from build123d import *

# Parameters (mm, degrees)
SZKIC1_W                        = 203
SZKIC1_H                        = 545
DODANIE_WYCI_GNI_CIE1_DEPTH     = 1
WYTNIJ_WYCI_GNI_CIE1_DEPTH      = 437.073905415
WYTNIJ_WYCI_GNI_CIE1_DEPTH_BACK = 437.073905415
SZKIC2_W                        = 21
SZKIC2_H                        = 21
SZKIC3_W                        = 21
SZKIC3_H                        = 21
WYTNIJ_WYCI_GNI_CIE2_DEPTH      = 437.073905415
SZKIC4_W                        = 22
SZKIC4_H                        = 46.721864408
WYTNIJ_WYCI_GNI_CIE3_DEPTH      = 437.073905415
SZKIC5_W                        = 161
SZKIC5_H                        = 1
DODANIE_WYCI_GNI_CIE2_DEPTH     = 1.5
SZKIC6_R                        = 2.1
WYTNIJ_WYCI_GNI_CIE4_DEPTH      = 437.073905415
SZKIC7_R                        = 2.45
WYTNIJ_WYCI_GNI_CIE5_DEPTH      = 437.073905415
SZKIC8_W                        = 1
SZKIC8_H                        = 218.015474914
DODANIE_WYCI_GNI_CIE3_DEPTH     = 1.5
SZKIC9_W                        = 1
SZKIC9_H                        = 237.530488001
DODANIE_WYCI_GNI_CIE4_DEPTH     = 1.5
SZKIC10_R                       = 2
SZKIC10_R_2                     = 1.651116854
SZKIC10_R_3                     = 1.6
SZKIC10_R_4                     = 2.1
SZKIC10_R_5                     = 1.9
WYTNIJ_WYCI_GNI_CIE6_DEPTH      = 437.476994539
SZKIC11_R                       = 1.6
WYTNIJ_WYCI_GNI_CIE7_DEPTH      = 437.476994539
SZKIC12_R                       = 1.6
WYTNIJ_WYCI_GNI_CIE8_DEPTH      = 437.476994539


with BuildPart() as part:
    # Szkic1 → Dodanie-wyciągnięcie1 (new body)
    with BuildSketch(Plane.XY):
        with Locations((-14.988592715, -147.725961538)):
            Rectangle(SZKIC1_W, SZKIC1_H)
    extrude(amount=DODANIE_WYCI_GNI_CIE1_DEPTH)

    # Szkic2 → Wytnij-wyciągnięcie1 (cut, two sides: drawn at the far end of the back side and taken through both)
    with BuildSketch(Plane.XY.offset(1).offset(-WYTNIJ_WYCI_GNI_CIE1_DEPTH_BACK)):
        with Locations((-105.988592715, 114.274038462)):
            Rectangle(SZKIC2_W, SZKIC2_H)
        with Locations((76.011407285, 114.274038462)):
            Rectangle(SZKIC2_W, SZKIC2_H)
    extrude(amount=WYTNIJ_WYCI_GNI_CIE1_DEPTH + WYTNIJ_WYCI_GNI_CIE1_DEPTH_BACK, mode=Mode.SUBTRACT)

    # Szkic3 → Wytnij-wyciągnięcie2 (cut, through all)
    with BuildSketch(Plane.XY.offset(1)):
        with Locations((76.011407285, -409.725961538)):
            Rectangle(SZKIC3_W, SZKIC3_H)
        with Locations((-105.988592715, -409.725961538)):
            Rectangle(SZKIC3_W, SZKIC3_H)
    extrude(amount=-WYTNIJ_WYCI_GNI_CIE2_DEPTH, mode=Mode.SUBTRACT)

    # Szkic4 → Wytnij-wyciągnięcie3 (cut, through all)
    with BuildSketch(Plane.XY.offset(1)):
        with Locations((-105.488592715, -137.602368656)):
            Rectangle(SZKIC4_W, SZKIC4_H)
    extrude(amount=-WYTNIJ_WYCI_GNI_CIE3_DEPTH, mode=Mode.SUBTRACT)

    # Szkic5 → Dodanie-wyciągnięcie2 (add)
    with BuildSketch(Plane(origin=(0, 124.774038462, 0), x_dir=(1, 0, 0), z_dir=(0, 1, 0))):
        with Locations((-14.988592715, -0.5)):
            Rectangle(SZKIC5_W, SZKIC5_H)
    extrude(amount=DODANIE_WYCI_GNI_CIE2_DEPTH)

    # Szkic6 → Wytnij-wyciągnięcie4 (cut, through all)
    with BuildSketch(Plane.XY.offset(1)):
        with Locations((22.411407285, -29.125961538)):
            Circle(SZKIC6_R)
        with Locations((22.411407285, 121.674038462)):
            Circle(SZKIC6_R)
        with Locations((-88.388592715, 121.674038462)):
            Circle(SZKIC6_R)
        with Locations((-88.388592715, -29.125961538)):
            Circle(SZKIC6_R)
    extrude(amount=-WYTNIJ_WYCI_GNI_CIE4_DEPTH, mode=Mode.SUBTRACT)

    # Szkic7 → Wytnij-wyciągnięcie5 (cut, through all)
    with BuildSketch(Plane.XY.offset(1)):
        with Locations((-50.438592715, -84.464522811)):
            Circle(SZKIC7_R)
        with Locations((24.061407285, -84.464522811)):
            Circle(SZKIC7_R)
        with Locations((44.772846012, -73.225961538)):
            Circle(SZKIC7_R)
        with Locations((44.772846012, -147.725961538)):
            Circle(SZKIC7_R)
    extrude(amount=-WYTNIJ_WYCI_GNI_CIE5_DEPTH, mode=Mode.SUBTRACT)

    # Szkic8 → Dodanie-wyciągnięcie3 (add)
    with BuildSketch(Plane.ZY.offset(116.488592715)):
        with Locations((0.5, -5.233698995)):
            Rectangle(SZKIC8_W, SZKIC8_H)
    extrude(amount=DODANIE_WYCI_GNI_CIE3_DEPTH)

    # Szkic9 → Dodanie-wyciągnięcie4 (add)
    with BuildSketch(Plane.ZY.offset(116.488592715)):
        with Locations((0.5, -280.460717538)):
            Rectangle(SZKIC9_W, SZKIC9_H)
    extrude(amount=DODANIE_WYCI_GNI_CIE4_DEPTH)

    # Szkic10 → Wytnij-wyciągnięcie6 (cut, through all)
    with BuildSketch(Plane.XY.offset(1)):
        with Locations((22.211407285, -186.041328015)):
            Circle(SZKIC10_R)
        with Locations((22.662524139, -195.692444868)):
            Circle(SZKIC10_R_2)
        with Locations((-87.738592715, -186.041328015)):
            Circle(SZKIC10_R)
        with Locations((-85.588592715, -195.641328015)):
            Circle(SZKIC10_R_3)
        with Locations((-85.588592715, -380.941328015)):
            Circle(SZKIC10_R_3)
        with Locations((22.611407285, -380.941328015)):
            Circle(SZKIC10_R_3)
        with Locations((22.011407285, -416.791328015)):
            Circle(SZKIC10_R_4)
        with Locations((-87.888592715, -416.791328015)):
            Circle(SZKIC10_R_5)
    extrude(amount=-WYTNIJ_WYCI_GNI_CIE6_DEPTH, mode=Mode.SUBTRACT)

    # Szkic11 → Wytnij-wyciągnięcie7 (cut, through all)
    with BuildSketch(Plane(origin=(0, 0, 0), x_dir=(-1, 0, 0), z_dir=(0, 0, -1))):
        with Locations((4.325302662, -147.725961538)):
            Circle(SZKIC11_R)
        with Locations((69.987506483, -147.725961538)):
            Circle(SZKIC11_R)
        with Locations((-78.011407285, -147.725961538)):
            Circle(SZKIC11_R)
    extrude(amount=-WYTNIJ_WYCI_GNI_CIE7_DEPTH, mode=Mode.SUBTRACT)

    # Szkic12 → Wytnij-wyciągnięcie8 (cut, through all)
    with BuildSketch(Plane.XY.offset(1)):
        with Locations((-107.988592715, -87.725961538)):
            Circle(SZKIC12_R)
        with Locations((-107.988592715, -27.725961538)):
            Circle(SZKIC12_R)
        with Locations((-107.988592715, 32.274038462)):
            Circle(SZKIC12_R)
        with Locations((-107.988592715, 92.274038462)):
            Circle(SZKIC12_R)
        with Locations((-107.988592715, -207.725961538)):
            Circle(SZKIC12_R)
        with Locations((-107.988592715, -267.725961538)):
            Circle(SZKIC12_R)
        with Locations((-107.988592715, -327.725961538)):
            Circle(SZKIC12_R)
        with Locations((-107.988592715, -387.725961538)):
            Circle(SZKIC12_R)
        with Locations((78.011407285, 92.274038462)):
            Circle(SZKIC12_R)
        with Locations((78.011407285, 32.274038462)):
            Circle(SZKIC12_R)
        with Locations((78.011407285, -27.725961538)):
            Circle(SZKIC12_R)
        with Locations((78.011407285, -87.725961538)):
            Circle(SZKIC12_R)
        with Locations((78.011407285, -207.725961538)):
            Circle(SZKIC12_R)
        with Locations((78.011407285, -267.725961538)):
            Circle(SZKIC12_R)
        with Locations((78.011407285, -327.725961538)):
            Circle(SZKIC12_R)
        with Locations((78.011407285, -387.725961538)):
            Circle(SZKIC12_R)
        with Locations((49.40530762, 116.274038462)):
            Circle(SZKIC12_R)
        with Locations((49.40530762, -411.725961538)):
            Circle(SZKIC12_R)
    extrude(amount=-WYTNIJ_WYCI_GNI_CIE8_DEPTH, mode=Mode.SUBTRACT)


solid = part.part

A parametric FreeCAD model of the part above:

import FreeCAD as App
import Part
import Sketcher
Q = App.Units.Quantity

doc = App.newDocument("Part")
body = doc.addObject("PartDesign::Body", "Body")

# Sketch on XY plane
sketch1 = body.newObject("Sketcher::SketchObject", "Sketch")
sketch1.AttachmentSupport = (doc.getObject("XY_Plane"), [""])
sketch1.MapMode = "FlatFace"
sketch1.addGeometry([
    Part.LineSegment(App.Vector(-116, 125, 0), App.Vector(-116, -420, 0)),
    Part.LineSegment(App.Vector(-116, -420, 0), App.Vector(87, -420, 0)),
    Part.LineSegment(App.Vector(87, -420, 0), App.Vector(87, 125, 0)),
    Part.LineSegment(App.Vector(87, 125, 0), App.Vector(-116, 125, 0)),
], False)
sketch1.addConstraint([
    Sketcher.Constraint("Coincident", 0, 2, 1, 1),
    Sketcher.Constraint("Coincident", 1, 2, 2, 1),
    Sketcher.Constraint("Coincident", 2, 2, 3, 1),
    Sketcher.Constraint("Coincident", 3, 2, 0, 1),
    Sketcher.Constraint("Vertical", 0),
    Sketcher.Constraint("Horizontal", 1),
    Sketcher.Constraint("Vertical", 2),
    Sketcher.Constraint("Horizontal", 3),
    Sketcher.Constraint("DistanceX", 1, 1, 1, 2, Q("203 mm")),
    Sketcher.Constraint("DistanceY", 0, 2, 0, 1, Q("545 mm")),
    Sketcher.Constraint("DistanceY", 0, 2, -1, 1, Q("420.225962 mm")),
    Sketcher.Constraint("DistanceX", 0, 2, -1, 1, Q("116.488593 mm")),
])
pad1 = body.newObject("PartDesign::Pad", "Pad")
pad1.Profile = sketch1
pad1.Length = 1

# Sketch on XY plane
sketch2 = body.newObject("Sketcher::SketchObject", "Sketch001")
sketch2.AttachmentSupport = (doc.getObject("XY_Plane"), [""])
sketch2.MapMode = "FlatFace"
sketch2.AttachmentOffset = App.Placement(App.Vector(0, 0, 1), App.Rotation())
sketch2.addGeometry([
    Part.LineSegment(App.Vector(-116, 125, 0), App.Vector(-116, 104, 0)),  # 0
    Part.LineSegment(App.Vector(-116, 104, 0), App.Vector(-95, 104, 0)),  # 1
    Part.LineSegment(App.Vector(-95, 104, 0), App.Vector(-95, 125, 0)),  # 2
    Part.LineSegment(App.Vector(-95, 125, 0), App.Vector(-116, 125, 0)),  # 3
    Part.LineSegment(App.Vector(66, 125, 0), App.Vector(66, 104, 0)),  # 4
    Part.LineSegment(App.Vector(66, 104, 0), App.Vector(87, 104, 0)),  # 5
    Part.LineSegment(App.Vector(87, 104, 0), App.Vector(87, 125, 0)),  # 6
    Part.LineSegment(App.Vector(87, 125, 0), App.Vector(66, 125, 0)),  # 7
], False)
sketch2.addConstraint([
    Sketcher.Constraint("Coincident", 0, 2, 1, 1),
    Sketcher.Constraint("Coincident", 1, 2, 2, 1),
    Sketcher.Constraint("Coincident", 2, 2, 3, 1),
    Sketcher.Constraint("Coincident", 3, 2, 0, 1),
    Sketcher.Constraint("Coincident", 4, 2, 5, 1),
    Sketcher.Constraint("Coincident", 5, 2, 6, 1),
    Sketcher.Constraint("Coincident", 6, 2, 7, 1),
    Sketcher.Constraint("Coincident", 7, 2, 4, 1),
    Sketcher.Constraint("Vertical", 0),
    Sketcher.Constraint("Horizontal", 1),
    Sketcher.Constraint("Vertical", 2),
    Sketcher.Constraint("Horizontal", 3),
    Sketcher.Constraint("Vertical", 4),
    Sketcher.Constraint("Horizontal", 5),
    Sketcher.Constraint("Vertical", 6),
    Sketcher.Constraint("Horizontal", 7),
    Sketcher.Constraint("Horizontal", 1, 2, 4, 2),
    Sketcher.Constraint("Horizontal", 3, 2, 6, 2),
    Sketcher.Constraint("Equal", 3, 5),
    Sketcher.Constraint("Equal", 7, 0),
    Sketcher.Constraint("DistanceX", 1, 1, 1, 2, Q("21 mm")),
    Sketcher.Constraint("DistanceX", 1, 2, 4, 2, Q("161 mm")),
    Sketcher.Constraint("DistanceY", -1, 1, 0, 2, Q("103.774038 mm")),
    Sketcher.Constraint("DistanceX", 0, 2, -1, 1, Q("116.488593 mm")),
])
pocket1 = body.newObject("PartDesign::Pocket", "Pocket")
pocket1.Profile = sketch2
pocket1.Type = "ThroughAll"
pocket1.Midplane = True

# Sketch on XY plane
sketch3 = body.newObject("Sketcher::SketchObject", "Sketch002")
sketch3.AttachmentSupport = (doc.getObject("XY_Plane"), [""])
sketch3.MapMode = "FlatFace"
sketch3.AttachmentOffset = App.Placement(App.Vector(0, 0, 1), App.Rotation())
sketch3.addGeometry([
    Part.LineSegment(App.Vector(66, -399, 0), App.Vector(66, -420, 0)),  # 0
    Part.LineSegment(App.Vector(66, -420, 0), App.Vector(87, -420, 0)),  # 1
    Part.LineSegment(App.Vector(87, -420, 0), App.Vector(87, -399, 0)),  # 2
    Part.LineSegment(App.Vector(87, -399, 0), App.Vector(66, -399, 0)),  # 3
    Part.LineSegment(App.Vector(-116, -399, 0), App.Vector(-116, -420, 0)),  # 4
    Part.LineSegment(App.Vector(-116, -420, 0), App.Vector(-95, -420, 0)),  # 5
    Part.LineSegment(App.Vector(-95, -420, 0), App.Vector(-95, -399, 0)),  # 6
    Part.LineSegment(App.Vector(-95, -399, 0), App.Vector(-116, -399, 0)),  # 7
], False)
sketch3.addConstraint([
    Sketcher.Constraint("Coincident", 0, 2, 1, 1),
    Sketcher.Constraint("Coincident", 1, 2, 2, 1),
    Sketcher.Constraint("Coincident", 2, 2, 3, 1),
    Sketcher.Constraint("Coincident", 3, 2, 0, 1),
    Sketcher.Constraint("Coincident", 4, 2, 5, 1),
    Sketcher.Constraint("Coincident", 5, 2, 6, 1),
    Sketcher.Constraint("Coincident", 6, 2, 7, 1),
    Sketcher.Constraint("Coincident", 7, 2, 4, 1),
    Sketcher.Constraint("Vertical", 0),
    Sketcher.Constraint("Horizontal", 1),
    Sketcher.Constraint("Vertical", 2),
    Sketcher.Constraint("Horizontal", 3),
    Sketcher.Constraint("Vertical", 4),
    Sketcher.Constraint("Horizontal", 5),
    Sketcher.Constraint("Vertical", 6),
    Sketcher.Constraint("Horizontal", 7),
    Sketcher.Constraint("Horizontal", 1, 2, 4, 2),
    Sketcher.Constraint("Horizontal", 3, 2, 6, 2),
    Sketcher.Constraint("Equal", 3, 5),
    Sketcher.Constraint("Equal", 7, 0),
    Sketcher.Constraint("DistanceX", 1, 1, 1, 2, Q("21 mm")),
    Sketcher.Constraint("DistanceX", 4, 2, 0, 2, Q("182 mm")),
    Sketcher.Constraint("DistanceY", 0, 2, -1, 1, Q("420.225962 mm")),
    Sketcher.Constraint("DistanceX", -1, 1, 0, 2, Q("65.511407 mm")),
])
pocket2 = body.newObject("PartDesign::Pocket", "Pocket001")
pocket2.Profile = sketch3
pocket2.Type = "ThroughAll"

# Sketch on XY plane
sketch4 = body.newObject("Sketcher::SketchObject", "Sketch003")
sketch4.AttachmentSupport = (doc.getObject("XY_Plane"), [""])
sketch4.MapMode = "FlatFace"
sketch4.AttachmentOffset = App.Placement(App.Vector(0, 0, 1), App.Rotation())
sketch4.addGeometry([
    Part.LineSegment(App.Vector(-116, -114, 0), App.Vector(-116, -161, 0)),
    Part.LineSegment(App.Vector(-116, -161, 0), App.Vector(-94, -161, 0)),
    Part.LineSegment(App.Vector(-94, -161, 0), App.Vector(-94, -114, 0)),
    Part.LineSegment(App.Vector(-94, -114, 0), App.Vector(-116, -114, 0)),
], False)
sketch4.addConstraint([
    Sketcher.Constraint("Coincident", 0, 2, 1, 1),
    Sketcher.Constraint("Coincident", 1, 2, 2, 1),
    Sketcher.Constraint("Coincident", 2, 2, 3, 1),
    Sketcher.Constraint("Coincident", 3, 2, 0, 1),
    Sketcher.Constraint("Vertical", 0),
    Sketcher.Constraint("Horizontal", 1),
    Sketcher.Constraint("Vertical", 2),
    Sketcher.Constraint("Horizontal", 3),
    Sketcher.Constraint("DistanceX", 1, 1, 1, 2, Q("22 mm")),
    Sketcher.Constraint("DistanceY", 0, 2, -1, 1, Q("160.963301 mm")),
    Sketcher.Constraint("DistanceY", 0, 2, 0, 1, Q("46.721864 mm")),
    Sketcher.Constraint("DistanceX", 0, 2, -1, 1, Q("116.488593 mm")),
])
pocket3 = body.newObject("PartDesign::Pocket", "Pocket002")
pocket3.Profile = sketch4
pocket3.Type = "ThroughAll"

# Sketch on XZ plane
sketch5 = body.newObject("Sketcher::SketchObject", "Sketch004")
sketch5.AttachmentSupport = (doc.getObject("XZ_Plane"), [""])
sketch5.MapMode = "FlatFace"
sketch5.AttachmentOffset = App.Placement(App.Vector(0, 0, -124.774038), App.Rotation())
sketch5.addGeometry([
    Part.LineSegment(App.Vector(-95.5, 0, 0), App.Vector(-95.5, 1, 0)),
    Part.LineSegment(App.Vector(-95.5, 1, 0), App.Vector(65.5, 1, 0)),
    Part.LineSegment(App.Vector(65.5, 1, 0), App.Vector(65.5, 0, 0)),
    Part.LineSegment(App.Vector(65.5, 0, 0), App.Vector(-95.5, 0, 0)),
], False)
sketch5.addConstraint([
    Sketcher.Constraint("Coincident", 0, 2, 1, 1),
    Sketcher.Constraint("Coincident", 1, 2, 2, 1),
    Sketcher.Constraint("Coincident", 2, 2, 3, 1),
    Sketcher.Constraint("Coincident", 3, 2, 0, 1),
    Sketcher.Constraint("Vertical", 0),
    Sketcher.Constraint("Horizontal", 1),
    Sketcher.Constraint("Vertical", 2),
    Sketcher.Constraint("Horizontal", 3),
    Sketcher.Constraint("PointOnObject", 2, 2, -1),
    Sketcher.Constraint("DistanceX", 1, 1, 1, 2, Q("161 mm")),
    Sketcher.Constraint("DistanceY", 0, 1, 0, 2, Q("1 mm")),
    Sketcher.Constraint("DistanceX", 0, 2, -1, 1, Q("95.488593 mm")),
])
pad2 = body.newObject("PartDesign::Pad", "Pad001")
pad2.Profile = sketch5
pad2.Length = 1.5
pad2.Reversed = True

# Sketch on XY plane
sketch6 = body.newObject("Sketcher::SketchObject", "Sketch005")
sketch6.AttachmentSupport = (doc.getObject("XY_Plane"), [""])
sketch6.MapMode = "FlatFace"
sketch6.AttachmentOffset = App.Placement(App.Vector(0, 0, 1), App.Rotation())
sketch6.addGeometry([
    Part.Circle(App.Vector(22.4, -29.1, 0), App.Vector(0, 0, 1), 2.1),
    Part.Circle(App.Vector(22.4, 121.7, 0), App.Vector(0, 0, 1), 2.1),
    Part.Circle(App.Vector(-88.4, 121.7, 0), App.Vector(0, 0, 1), 2.1),
    Part.Circle(App.Vector(-88.4, -29.1, 0), App.Vector(0, 0, 1), 2.1),
], False)
sketch6.addConstraint([
    Sketcher.Constraint("Equal", 0, 1),
    Sketcher.Constraint("Equal", 1, 2),
    Sketcher.Constraint("Equal", 2, 3),
    Sketcher.Constraint("Horizontal", 1, 3, 2, 3),
    Sketcher.Constraint("Horizontal", 0, 3, 3, 3),
    Sketcher.Constraint("Vertical", 0, 3, 1, 3),
    Sketcher.Constraint("Vertical", 2, 3, 3, 3),
    Sketcher.Constraint("Diameter", 0, Q("4.2 mm")),
    Sketcher.Constraint("DistanceY", 0, 3, 1, 3, Q("150.8 mm")),
    Sketcher.Constraint("DistanceX", 2, 3, 1, 3, Q("110.8 mm")),
    Sketcher.Constraint("DistanceY", 0, 3, -1, 1, Q("29.125962 mm")),
    Sketcher.Constraint("DistanceX", -1, 1, 0, 3, Q("22.411407 mm")),
])
pocket4 = body.newObject("PartDesign::Pocket", "Pocket003")
pocket4.Profile = sketch6
pocket4.Type = "ThroughAll"

# Sketch on XY plane
sketch7 = body.newObject("Sketcher::SketchObject", "Sketch006")
sketch7.AttachmentSupport = (doc.getObject("XY_Plane"), [""])
sketch7.MapMode = "FlatFace"
sketch7.AttachmentOffset = App.Placement(App.Vector(0, 0, 1), App.Rotation())
sketch7.addGeometry([
    Part.Circle(App.Vector(-50.4, -84.5, 0), App.Vector(0, 0, 1), 2.5),
    Part.Circle(App.Vector(24.1, -84.5, 0), App.Vector(0, 0, 1), 2.5),
    Part.Circle(App.Vector(44.8, -73.2, 0), App.Vector(0, 0, 1), 2.5),
    Part.Circle(App.Vector(44.8, -147.7, 0), App.Vector(0, 0, 1), 2.5),
], False)
sketch7.addConstraint([
    Sketcher.Constraint("Equal", 0, 1),
    Sketcher.Constraint("Equal", 1, 2),
    Sketcher.Constraint("Equal", 2, 3),
    Sketcher.Constraint("Horizontal", 0, 3, 1, 3),
    Sketcher.Constraint("Vertical", 2, 3, 3, 3),
    Sketcher.Constraint("Diameter", 0, Q("4.9 mm")),
    Sketcher.Constraint("DistanceX", 0, 3, 1, 3, Q("74.5 mm")),
    Sketcher.Constraint("DistanceY", 3, 3, 2, 3, Q("74.5 mm")),
    Sketcher.Constraint("DistanceY", 2, 3, -1, 1, Q("73.225962 mm")),
    Sketcher.Constraint("DistanceX", 1, 3, 2, 3, Q("20.711439 mm")),
    Sketcher.Constraint("DistanceY", 1, 3, 2, 3, Q("11.238561 mm")),
    Sketcher.Constraint("DistanceX", 0, 3, -1, 1, Q("50.438593 mm")),
])
pocket5 = body.newObject("PartDesign::Pocket", "Pocket004")
pocket5.Profile = sketch7
pocket5.Type = "ThroughAll"

# Sketch on YZ plane
sketch8 = body.newObject("Sketcher::SketchObject", "Sketch007")
sketch8.AttachmentSupport = (doc.getObject("YZ_Plane"), [""])
sketch8.MapMode = "FlatFace"
sketch8.AttachmentOffset = App.Placement(App.Vector(0, 0, -116.488593), App.Rotation())
sketch8.addGeometry([
    Part.LineSegment(App.Vector(103.8, 0, 0), App.Vector(-114.2, 0, 0)),
    Part.LineSegment(App.Vector(-114.2, 0, 0), App.Vector(-114.2, 1, 0)),
    Part.LineSegment(App.Vector(-114.2, 1, 0), App.Vector(103.8, 1, 0)),
    Part.LineSegment(App.Vector(103.8, 1, 0), App.Vector(103.8, 0, 0)),
], False)
sketch8.addConstraint([
    Sketcher.Constraint("Coincident", 0, 2, 1, 1),
    Sketcher.Constraint("Coincident", 1, 2, 2, 1),
    Sketcher.Constraint("Coincident", 2, 2, 3, 1),
    Sketcher.Constraint("Coincident", 3, 2, 0, 1),
    Sketcher.Constraint("Horizontal", 0),
    Sketcher.Constraint("Vertical", 1),
    Sketcher.Constraint("Horizontal", 2),
    Sketcher.Constraint("Vertical", 3),
    Sketcher.Constraint("PointOnObject", 0, 2, -1),
    Sketcher.Constraint("DistanceY", 1, 1, 1, 2, Q("1 mm")),
    Sketcher.Constraint("DistanceX", 0, 2, 0, 1, Q("218.015475 mm")),
    Sketcher.Constraint("DistanceX", -1, 1, 2, 2, Q("103.774038 mm")),
])
pad3 = body.newObject("PartDesign::Pad", "Pad002")
pad3.Profile = sketch8
pad3.Length = 1.5
pad3.Reversed = True

# Sketch on YZ plane
sketch9 = body.newObject("Sketcher::SketchObject", "Sketch008")
sketch9.AttachmentSupport = (doc.getObject("YZ_Plane"), [""])
sketch9.MapMode = "FlatFace"
sketch9.AttachmentOffset = App.Placement(App.Vector(0, 0, -116.488593), App.Rotation())
sketch9.addGeometry([
    Part.LineSegment(App.Vector(-161.7, 0, 0), App.Vector(-399.2, 0, 0)),
    Part.LineSegment(App.Vector(-399.2, 0, 0), App.Vector(-399.2, 1, 0)),
    Part.LineSegment(App.Vector(-399.2, 1, 0), App.Vector(-161.7, 1, 0)),
    Part.LineSegment(App.Vector(-161.7, 1, 0), App.Vector(-161.7, 0, 0)),
], False)
sketch9.addConstraint([
    Sketcher.Constraint("Coincident", 0, 2, 1, 1),
    Sketcher.Constraint("Coincident", 1, 2, 2, 1),
    Sketcher.Constraint("Coincident", 2, 2, 3, 1),
    Sketcher.Constraint("Coincident", 3, 2, 0, 1),
    Sketcher.Constraint("Horizontal", 0),
    Sketcher.Constraint("Vertical", 1),
    Sketcher.Constraint("Horizontal", 2),
    Sketcher.Constraint("Vertical", 3),
    Sketcher.Constraint("PointOnObject", 0, 2, -1),
    Sketcher.Constraint("DistanceY", 1, 1, 1, 2, Q("1 mm")),
    Sketcher.Constraint("DistanceX", 0, 2, 0, 1, Q("237.530488 mm")),
    Sketcher.Constraint("DistanceX", 0, 2, -1, 1, Q("399.225962 mm")),
])
pad4 = body.newObject("PartDesign::Pad", "Pad003")
pad4.Profile = sketch9
pad4.Length = 1.5
pad4.Reversed = True

# Sketch on XY plane
sketch10 = body.newObject("Sketcher::SketchObject", "Sketch009")
sketch10.AttachmentSupport = (doc.getObject("XY_Plane"), [""])
sketch10.MapMode = "FlatFace"
sketch10.AttachmentOffset = App.Placement(App.Vector(0, 0, 1), App.Rotation())
sketch10.addGeometry([
    Part.Circle(App.Vector(22.2, -186, 0), App.Vector(0, 0, 1), 2),  # 0
    Part.Circle(App.Vector(22.7, -195.7, 0), App.Vector(0, 0, 1), 1.7),  # 1
    Part.Circle(App.Vector(-87.7, -186, 0), App.Vector(0, 0, 1), 2),  # 2
    Part.Circle(App.Vector(-85.6, -195.6, 0), App.Vector(0, 0, 1), 1.6),  # 3
    Part.Circle(App.Vector(-85.6, -380.9, 0), App.Vector(0, 0, 1), 1.6),  # 4
    Part.Circle(App.Vector(22.6, -380.9, 0), App.Vector(0, 0, 1), 1.6),  # 5
    Part.Circle(App.Vector(22, -416.8, 0), App.Vector(0, 0, 1), 2.1),  # 6
    Part.Circle(App.Vector(-87.9, -416.8, 0), App.Vector(0, 0, 1), 1.9),  # 7
], False)
sketch10.addConstraint([
    Sketcher.Constraint("Equal", 0, 2),
    Sketcher.Constraint("Equal", 3, 4),
    Sketcher.Constraint("Equal", 4, 5),
    Sketcher.Constraint("Horizontal", 0, 3, 2, 3),
    Sketcher.Constraint("Horizontal", 4, 3, 5, 3),
    Sketcher.Constraint("Horizontal", 6, 3, 7, 3),
    Sketcher.Constraint("Vertical", 3, 3, 4, 3),
    Sketcher.Constraint("Diameter", 0, Q("4 mm")),
    Sketcher.Constraint("Diameter", 3, Q("3.2 mm")),
    Sketcher.Constraint("Diameter", 6, Q("4.2 mm")),
    Sketcher.Constraint("Diameter", 7, Q("3.8 mm")),
    Sketcher.Constraint("DistanceY", 3, 3, 2, 3, Q("9.6 mm")),
    Sketcher.Constraint("DistanceX", 3, 3, 0, 3, Q("107.8 mm")),
    Sketcher.Constraint("DistanceY", 4, 3, 3, 3, Q("185.3 mm")),
    Sketcher.Constraint("DistanceX", 4, 3, 5, 3, Q("108.2 mm")),
    Sketcher.Constraint("DistanceX", 6, 3, 5, 3, Q("0.6 mm")),
    Sketcher.Constraint("DistanceX", 7, 3, 4, 3, Q("2.3 mm")),
    Sketcher.Constraint("DistanceX", 2, 3, 0, 3, Q("109.95 mm")),
    Sketcher.Constraint("DistanceY", 6, 3, 5, 3, Q("35.85 mm")),
    Sketcher.Constraint("Diameter", 1, Q("3.302234 mm")),
    Sketcher.Constraint("DistanceY", 0, 3, -1, 1, Q("186.041328 mm")),
    Sketcher.Constraint("DistanceX", -1, 1, 0, 3, Q("22.211407 mm")),
    Sketcher.Constraint("DistanceX", -1, 1, 1, 3, Q("22.662524 mm")),
    Sketcher.Constraint("DistanceY", 1, 3, -1, 1, Q("195.692445 mm")),
])
pocket6 = body.newObject("PartDesign::Pocket", "Pocket005")
pocket6.Profile = sketch10
pocket6.Type = "ThroughAll"

# Sketch on XY plane
sketch11 = body.newObject("Sketcher::SketchObject", "Sketch010")
sketch11.AttachmentSupport = (doc.getObject("XY_Plane"), [""])
sketch11.MapMode = "FlatFace"
sketch11.addGeometry([
    Part.Circle(App.Vector(-4.3, -147.7, 0), App.Vector(0, 0, 1), 1.6),
    Part.Circle(App.Vector(-70, -147.7, 0), App.Vector(0, 0, 1), 1.6),
    Part.Circle(App.Vector(78, -147.7, 0), App.Vector(0, 0, 1), 1.6),
], False)
sketch11.addConstraint([
    Sketcher.Constraint("Equal", 0, 1),
    Sketcher.Constraint("Equal", 1, 2),
    Sketcher.Constraint("Horizontal", 0, 3, 1, 3),
    Sketcher.Constraint("Horizontal", 1, 3, 2, 3),
    Sketcher.Constraint("Diameter", 0, Q("3.2 mm")),
    Sketcher.Constraint("DistanceY", 0, 3, -1, 1, Q("147.725962 mm")),
    Sketcher.Constraint("DistanceX", 0, 3, 2, 3, Q("82.33671 mm")),
    Sketcher.Constraint("DistanceX", 0, 3, -1, 1, Q("4.325303 mm")),
    Sketcher.Constraint("DistanceX", 1, 3, -1, 1, Q("69.987506 mm")),
])
pocket7 = body.newObject("PartDesign::Pocket", "Pocket006")
pocket7.Profile = sketch11
pocket7.Type = "ThroughAll"
pocket7.Reversed = True

# Sketch on XY plane
sketch12 = body.newObject("Sketcher::SketchObject", "Sketch011")
sketch12.AttachmentSupport = (doc.getObject("XY_Plane"), [""])
sketch12.MapMode = "FlatFace"
sketch12.AttachmentOffset = App.Placement(App.Vector(0, 0, 1), App.Rotation())
sketch12.addGeometry([
    Part.Circle(App.Vector(-108, -87.7, 0), App.Vector(0, 0, 1), 1.6),  # 0
    Part.Circle(App.Vector(-108, -27.7, 0), App.Vector(0, 0, 1), 1.6),  # 1
    Part.Circle(App.Vector(-108, 32.3, 0), App.Vector(0, 0, 1), 1.6),  # 2
    Part.Circle(App.Vector(-108, 92.3, 0), App.Vector(0, 0, 1), 1.6),  # 3
    Part.Circle(App.Vector(-108, -207.7, 0), App.Vector(0, 0, 1), 1.6),  # 4
    Part.Circle(App.Vector(-108, -267.7, 0), App.Vector(0, 0, 1), 1.6),  # 5
    Part.Circle(App.Vector(-108, -327.7, 0), App.Vector(0, 0, 1), 1.6),  # 6
    Part.Circle(App.Vector(-108, -387.7, 0), App.Vector(0, 0, 1), 1.6),  # 7
    Part.Circle(App.Vector(78, 92.3, 0), App.Vector(0, 0, 1), 1.6),  # 8
    Part.Circle(App.Vector(78, 32.3, 0), App.Vector(0, 0, 1), 1.6),  # 9
    Part.Circle(App.Vector(78, -27.7, 0), App.Vector(0, 0, 1), 1.6),  # 10
    Part.Circle(App.Vector(78, -87.7, 0), App.Vector(0, 0, 1), 1.6),  # 11
    Part.Circle(App.Vector(78, -207.7, 0), App.Vector(0, 0, 1), 1.6),  # 12
    Part.Circle(App.Vector(78, -267.7, 0), App.Vector(0, 0, 1), 1.6),  # 13
    Part.Circle(App.Vector(78, -327.7, 0), App.Vector(0, 0, 1), 1.6),  # 14
    Part.Circle(App.Vector(78, -387.7, 0), App.Vector(0, 0, 1), 1.6),  # 15
    Part.Circle(App.Vector(49.4, 116.3, 0), App.Vector(0, 0, 1), 1.6),  # 16
    Part.Circle(App.Vector(49.4, -411.7, 0), App.Vector(0, 0, 1), 1.6),  # 17
], False)
sketch12.addConstraint([
    Sketcher.Constraint("Equal", 0, 1),
    Sketcher.Constraint("Equal", 1, 2),
    Sketcher.Constraint("Equal", 2, 3),
    Sketcher.Constraint("Equal", 3, 4),
    Sketcher.Constraint("Equal", 4, 5),
    Sketcher.Constraint("Equal", 5, 6),
    Sketcher.Constraint("Equal", 6, 7),
    Sketcher.Constraint("Equal", 7, 8),
    Sketcher.Constraint("Equal", 8, 9),
    Sketcher.Constraint("Equal", 9, 10),
    Sketcher.Constraint("Equal", 10, 11),
    Sketcher.Constraint("Equal", 11, 12),
    Sketcher.Constraint("Equal", 12, 13),
    Sketcher.Constraint("Equal", 13, 14),
    Sketcher.Constraint("Equal", 14, 15),
    Sketcher.Constraint("Equal", 15, 16),
    Sketcher.Constraint("Equal", 16, 17),
    Sketcher.Constraint("Horizontal", 3, 3, 8, 3),
    Sketcher.Constraint("Horizontal", 2, 3, 9, 3),
    Sketcher.Constraint("Horizontal", 1, 3, 10, 3),
    Sketcher.Constraint("Horizontal", 0, 3, 11, 3),
    Sketcher.Constraint("Horizontal", 4, 3, 12, 3),
    Sketcher.Constraint("Horizontal", 5, 3, 13, 3),
    Sketcher.Constraint("Horizontal", 6, 3, 14, 3),
    Sketcher.Constraint("Horizontal", 7, 3, 15, 3),
    Sketcher.Constraint("Vertical", 0, 3, 1, 3),
    Sketcher.Constraint("Vertical", 1, 3, 2, 3),
    Sketcher.Constraint("Vertical", 2, 3, 3, 3),
    Sketcher.Constraint("Vertical", 3, 3, 4, 3),
    Sketcher.Constraint("Vertical", 4, 3, 5, 3),
    Sketcher.Constraint("Vertical", 5, 3, 6, 3),
    Sketcher.Constraint("Vertical", 6, 3, 7, 3),
    Sketcher.Constraint("Vertical", 8, 3, 9, 3),
    Sketcher.Constraint("Vertical", 9, 3, 10, 3),
    Sketcher.Constraint("Vertical", 10, 3, 11, 3),
    Sketcher.Constraint("Vertical", 11, 3, 12, 3),
    Sketcher.Constraint("Vertical", 12, 3, 13, 3),
    Sketcher.Constraint("Vertical", 13, 3, 14, 3),
    Sketcher.Constraint("Vertical", 14, 3, 15, 3),
    Sketcher.Constraint("Vertical", 16, 3, 17, 3),
    Sketcher.Constraint("Diameter", 0, Q("3.2 mm")),
    Sketcher.Constraint("DistanceY", 0, 3, 1, 3, Q("60 mm")),
    Sketcher.Constraint("DistanceY", 1, 3, 2, 3, Q("60 mm")),
    Sketcher.Constraint("DistanceY", 2, 3, 3, 3, Q("60 mm")),
    Sketcher.Constraint("DistanceY", 4, 3, 0, 3, Q("120 mm")),
    Sketcher.Constraint("DistanceY", 5, 3, 4, 3, Q("60 mm")),
    Sketcher.Constraint("DistanceY", 6, 3, 5, 3, Q("60 mm")),
    Sketcher.Constraint("DistanceY", 7, 3, 6, 3, Q("60 mm")),
    Sketcher.Constraint("DistanceX", 3, 3, 8, 3, Q("186 mm")),
    Sketcher.Constraint("DistanceY", 8, 3, 16, 3, Q("24 mm")),
    Sketcher.Constraint("DistanceY", 17, 3, 15, 3, Q("24 mm")),
    Sketcher.Constraint("DistanceX", 16, 3, 8, 3, Q("28.6061 mm")),
    Sketcher.Constraint("DistanceY", 0, 3, -1, 1, Q("87.725962 mm")),
    Sketcher.Constraint("DistanceX", 0, 3, -1, 1, Q("107.988593 mm")),
])
pocket8 = body.newObject("PartDesign::Pocket", "Pocket007")
pocket8.Profile = sketch12
pocket8.Type = "ThroughAll"

doc.recompute()
